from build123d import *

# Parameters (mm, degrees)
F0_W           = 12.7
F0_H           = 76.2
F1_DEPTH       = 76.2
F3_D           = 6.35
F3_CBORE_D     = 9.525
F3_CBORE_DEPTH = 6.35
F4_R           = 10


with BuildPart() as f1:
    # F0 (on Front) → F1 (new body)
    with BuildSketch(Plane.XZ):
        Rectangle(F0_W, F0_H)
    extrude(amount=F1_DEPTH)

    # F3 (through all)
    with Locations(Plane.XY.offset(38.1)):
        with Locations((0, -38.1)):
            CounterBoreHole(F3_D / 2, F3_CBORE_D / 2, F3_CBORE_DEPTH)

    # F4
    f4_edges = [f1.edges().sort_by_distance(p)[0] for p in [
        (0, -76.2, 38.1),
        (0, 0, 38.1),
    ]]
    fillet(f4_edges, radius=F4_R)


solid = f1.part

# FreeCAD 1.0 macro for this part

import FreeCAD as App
import Part
import Sketcher
Q = App.Units.Quantity


def edges_at(feature, points):
    """Names of the edges that pass closest to the given points."""
    edges = feature.Shape.Edges
    near = lambda p: min(range(len(edges)), key=lambda i: edges[i].distToShape(Part.Vertex(*p))[0])
    return sorted({f"Edge{near(p) + 1}" for p in points})

doc = App.newDocument("Part")
params = doc.addObject("Spreadsheet::Sheet", "Params")
for row, (alias, value) in enumerate([
    ("sketch1_height", "3 in"),
    ("sketch1_width", "0.5 in"),
    ("pad1_length", "3 in"),
    ("sketch2_diameter", "0.25 in"),
    ("hole_diameter", "0.25 in"),
    ("hole_cbore_diameter", "0.375 in"),
    ("hole_cbore_depth", "0.25 in"),
    ("fillet_radius", "10 mm"),
], start=1):
    params.set(f"A{row}", alias)
    params.set(f"B{row}", "=" + value)
    params.setAlias(f"B{row}", alias)

body = doc.addObject("PartDesign::Body", "Body")

sketch1 = doc.addObject("Sketcher::SketchObject", "Sketch")
body.addObject(sketch1)
sketch1.AttachmentSupport = (doc.XZ_Plane, [""])
sketch1.MapMode = "FlatFace"
sketch1.addGeometry([
    Part.LineSegment(App.Vector(-6, 38, 0), App.Vector(-6, -38, 0)),
    Part.LineSegment(App.Vector(-6, -38, 0), App.Vector(6, -38, 0)),
    Part.LineSegment(App.Vector(6, -38, 0), App.Vector(6, 38, 0)),
    Part.LineSegment(App.Vector(6, 38, 0), App.Vector(-6, 38, 0)),
], False)
sketch1.addConstraint([
    Sketcher.Constraint("Coincident", 0, 2, 1, 1),
    Sketcher.Constraint("Coincident", 1, 2, 2, 1),
    Sketcher.Constraint("Coincident", 2, 2, 3, 1),
    Sketcher.Constraint("Coincident", 3, 2, 0, 1),
    Sketcher.Constraint("Vertical", 0),
    Sketcher.Constraint("Horizontal", 1),
    Sketcher.Constraint("Vertical", 2),
    Sketcher.Constraint("Horizontal", 3),
    Sketcher.Constraint("Symmetric", 0, 2, 2, 2, -1, 1),
    Sketcher.Constraint("DistanceY", 0, 2, 0, 1, Q("3 in")),
    Sketcher.Constraint("DistanceX", 1, 1, 1, 2, Q("0.5 in")),
])
sketch1.setExpression("Constraints[9]", "Params.sketch1_height")
sketch1.setExpression("Constraints[10]", "Params.sketch1_width")
pad1 = doc.addObject("PartDesign::Pad", "Pad")
body.addObject(pad1)
pad1.Profile = sketch1
pad1.setExpression("Length", "Params.pad1_length")

sketch2 = doc.addObject("Sketcher::SketchObject", "Sketch001")
body.addObject(sketch2)
sketch2.AttachmentSupport = (doc.XY_Plane, [""])
sketch2.MapMode = "FlatFace"
sketch2.AttachmentOffset = App.Placement(App.Vector(0, 0, 1.5 * 25.4), App.Rotation())
sketch2.addGeometry(Part.Circle(App.Vector(0, -38.1, 0), App.Vector(0, 0, 1), 3.2), False)
sketch2.addConstraint([
    Sketcher.Constraint("PointOnObject", 0, 3, -2),
    Sketcher.Constraint("Diameter", 0, Q("0.25 in")),
    Sketcher.Constraint("DistanceY", 0, 3, -1, 1, Q("1.5 in")),
])
sketch2.setExpression("Constraints[1]", "Params.sketch2_diameter")
doc.recompute()
hole = doc.addObject("PartDesign::Hole", "Hole")
body.addObject(hole)
hole.Profile = sketch2
hole.ThreadType = "None"
hole.setExpression("Diameter", "Params.hole_diameter")
hole.DepthType = "ThroughAll"
hole.HoleCutType = "Counterbore"
hole.setExpression("HoleCutDiameter", "Params.hole_cbore_diameter")
hole.setExpression("HoleCutDepth", "Params.hole_cbore_depth")
doc.recompute()

fillet = doc.addObject("PartDesign::Fillet", "Fillet")
body.addObject(fillet)
fillet.Base = (hole, edges_at(hole, [(0, -76.2, 38.1), (0, 0, 38.1)]))
fillet.setExpression("Radius", "Params.fillet_radius")

doc.recompute()
